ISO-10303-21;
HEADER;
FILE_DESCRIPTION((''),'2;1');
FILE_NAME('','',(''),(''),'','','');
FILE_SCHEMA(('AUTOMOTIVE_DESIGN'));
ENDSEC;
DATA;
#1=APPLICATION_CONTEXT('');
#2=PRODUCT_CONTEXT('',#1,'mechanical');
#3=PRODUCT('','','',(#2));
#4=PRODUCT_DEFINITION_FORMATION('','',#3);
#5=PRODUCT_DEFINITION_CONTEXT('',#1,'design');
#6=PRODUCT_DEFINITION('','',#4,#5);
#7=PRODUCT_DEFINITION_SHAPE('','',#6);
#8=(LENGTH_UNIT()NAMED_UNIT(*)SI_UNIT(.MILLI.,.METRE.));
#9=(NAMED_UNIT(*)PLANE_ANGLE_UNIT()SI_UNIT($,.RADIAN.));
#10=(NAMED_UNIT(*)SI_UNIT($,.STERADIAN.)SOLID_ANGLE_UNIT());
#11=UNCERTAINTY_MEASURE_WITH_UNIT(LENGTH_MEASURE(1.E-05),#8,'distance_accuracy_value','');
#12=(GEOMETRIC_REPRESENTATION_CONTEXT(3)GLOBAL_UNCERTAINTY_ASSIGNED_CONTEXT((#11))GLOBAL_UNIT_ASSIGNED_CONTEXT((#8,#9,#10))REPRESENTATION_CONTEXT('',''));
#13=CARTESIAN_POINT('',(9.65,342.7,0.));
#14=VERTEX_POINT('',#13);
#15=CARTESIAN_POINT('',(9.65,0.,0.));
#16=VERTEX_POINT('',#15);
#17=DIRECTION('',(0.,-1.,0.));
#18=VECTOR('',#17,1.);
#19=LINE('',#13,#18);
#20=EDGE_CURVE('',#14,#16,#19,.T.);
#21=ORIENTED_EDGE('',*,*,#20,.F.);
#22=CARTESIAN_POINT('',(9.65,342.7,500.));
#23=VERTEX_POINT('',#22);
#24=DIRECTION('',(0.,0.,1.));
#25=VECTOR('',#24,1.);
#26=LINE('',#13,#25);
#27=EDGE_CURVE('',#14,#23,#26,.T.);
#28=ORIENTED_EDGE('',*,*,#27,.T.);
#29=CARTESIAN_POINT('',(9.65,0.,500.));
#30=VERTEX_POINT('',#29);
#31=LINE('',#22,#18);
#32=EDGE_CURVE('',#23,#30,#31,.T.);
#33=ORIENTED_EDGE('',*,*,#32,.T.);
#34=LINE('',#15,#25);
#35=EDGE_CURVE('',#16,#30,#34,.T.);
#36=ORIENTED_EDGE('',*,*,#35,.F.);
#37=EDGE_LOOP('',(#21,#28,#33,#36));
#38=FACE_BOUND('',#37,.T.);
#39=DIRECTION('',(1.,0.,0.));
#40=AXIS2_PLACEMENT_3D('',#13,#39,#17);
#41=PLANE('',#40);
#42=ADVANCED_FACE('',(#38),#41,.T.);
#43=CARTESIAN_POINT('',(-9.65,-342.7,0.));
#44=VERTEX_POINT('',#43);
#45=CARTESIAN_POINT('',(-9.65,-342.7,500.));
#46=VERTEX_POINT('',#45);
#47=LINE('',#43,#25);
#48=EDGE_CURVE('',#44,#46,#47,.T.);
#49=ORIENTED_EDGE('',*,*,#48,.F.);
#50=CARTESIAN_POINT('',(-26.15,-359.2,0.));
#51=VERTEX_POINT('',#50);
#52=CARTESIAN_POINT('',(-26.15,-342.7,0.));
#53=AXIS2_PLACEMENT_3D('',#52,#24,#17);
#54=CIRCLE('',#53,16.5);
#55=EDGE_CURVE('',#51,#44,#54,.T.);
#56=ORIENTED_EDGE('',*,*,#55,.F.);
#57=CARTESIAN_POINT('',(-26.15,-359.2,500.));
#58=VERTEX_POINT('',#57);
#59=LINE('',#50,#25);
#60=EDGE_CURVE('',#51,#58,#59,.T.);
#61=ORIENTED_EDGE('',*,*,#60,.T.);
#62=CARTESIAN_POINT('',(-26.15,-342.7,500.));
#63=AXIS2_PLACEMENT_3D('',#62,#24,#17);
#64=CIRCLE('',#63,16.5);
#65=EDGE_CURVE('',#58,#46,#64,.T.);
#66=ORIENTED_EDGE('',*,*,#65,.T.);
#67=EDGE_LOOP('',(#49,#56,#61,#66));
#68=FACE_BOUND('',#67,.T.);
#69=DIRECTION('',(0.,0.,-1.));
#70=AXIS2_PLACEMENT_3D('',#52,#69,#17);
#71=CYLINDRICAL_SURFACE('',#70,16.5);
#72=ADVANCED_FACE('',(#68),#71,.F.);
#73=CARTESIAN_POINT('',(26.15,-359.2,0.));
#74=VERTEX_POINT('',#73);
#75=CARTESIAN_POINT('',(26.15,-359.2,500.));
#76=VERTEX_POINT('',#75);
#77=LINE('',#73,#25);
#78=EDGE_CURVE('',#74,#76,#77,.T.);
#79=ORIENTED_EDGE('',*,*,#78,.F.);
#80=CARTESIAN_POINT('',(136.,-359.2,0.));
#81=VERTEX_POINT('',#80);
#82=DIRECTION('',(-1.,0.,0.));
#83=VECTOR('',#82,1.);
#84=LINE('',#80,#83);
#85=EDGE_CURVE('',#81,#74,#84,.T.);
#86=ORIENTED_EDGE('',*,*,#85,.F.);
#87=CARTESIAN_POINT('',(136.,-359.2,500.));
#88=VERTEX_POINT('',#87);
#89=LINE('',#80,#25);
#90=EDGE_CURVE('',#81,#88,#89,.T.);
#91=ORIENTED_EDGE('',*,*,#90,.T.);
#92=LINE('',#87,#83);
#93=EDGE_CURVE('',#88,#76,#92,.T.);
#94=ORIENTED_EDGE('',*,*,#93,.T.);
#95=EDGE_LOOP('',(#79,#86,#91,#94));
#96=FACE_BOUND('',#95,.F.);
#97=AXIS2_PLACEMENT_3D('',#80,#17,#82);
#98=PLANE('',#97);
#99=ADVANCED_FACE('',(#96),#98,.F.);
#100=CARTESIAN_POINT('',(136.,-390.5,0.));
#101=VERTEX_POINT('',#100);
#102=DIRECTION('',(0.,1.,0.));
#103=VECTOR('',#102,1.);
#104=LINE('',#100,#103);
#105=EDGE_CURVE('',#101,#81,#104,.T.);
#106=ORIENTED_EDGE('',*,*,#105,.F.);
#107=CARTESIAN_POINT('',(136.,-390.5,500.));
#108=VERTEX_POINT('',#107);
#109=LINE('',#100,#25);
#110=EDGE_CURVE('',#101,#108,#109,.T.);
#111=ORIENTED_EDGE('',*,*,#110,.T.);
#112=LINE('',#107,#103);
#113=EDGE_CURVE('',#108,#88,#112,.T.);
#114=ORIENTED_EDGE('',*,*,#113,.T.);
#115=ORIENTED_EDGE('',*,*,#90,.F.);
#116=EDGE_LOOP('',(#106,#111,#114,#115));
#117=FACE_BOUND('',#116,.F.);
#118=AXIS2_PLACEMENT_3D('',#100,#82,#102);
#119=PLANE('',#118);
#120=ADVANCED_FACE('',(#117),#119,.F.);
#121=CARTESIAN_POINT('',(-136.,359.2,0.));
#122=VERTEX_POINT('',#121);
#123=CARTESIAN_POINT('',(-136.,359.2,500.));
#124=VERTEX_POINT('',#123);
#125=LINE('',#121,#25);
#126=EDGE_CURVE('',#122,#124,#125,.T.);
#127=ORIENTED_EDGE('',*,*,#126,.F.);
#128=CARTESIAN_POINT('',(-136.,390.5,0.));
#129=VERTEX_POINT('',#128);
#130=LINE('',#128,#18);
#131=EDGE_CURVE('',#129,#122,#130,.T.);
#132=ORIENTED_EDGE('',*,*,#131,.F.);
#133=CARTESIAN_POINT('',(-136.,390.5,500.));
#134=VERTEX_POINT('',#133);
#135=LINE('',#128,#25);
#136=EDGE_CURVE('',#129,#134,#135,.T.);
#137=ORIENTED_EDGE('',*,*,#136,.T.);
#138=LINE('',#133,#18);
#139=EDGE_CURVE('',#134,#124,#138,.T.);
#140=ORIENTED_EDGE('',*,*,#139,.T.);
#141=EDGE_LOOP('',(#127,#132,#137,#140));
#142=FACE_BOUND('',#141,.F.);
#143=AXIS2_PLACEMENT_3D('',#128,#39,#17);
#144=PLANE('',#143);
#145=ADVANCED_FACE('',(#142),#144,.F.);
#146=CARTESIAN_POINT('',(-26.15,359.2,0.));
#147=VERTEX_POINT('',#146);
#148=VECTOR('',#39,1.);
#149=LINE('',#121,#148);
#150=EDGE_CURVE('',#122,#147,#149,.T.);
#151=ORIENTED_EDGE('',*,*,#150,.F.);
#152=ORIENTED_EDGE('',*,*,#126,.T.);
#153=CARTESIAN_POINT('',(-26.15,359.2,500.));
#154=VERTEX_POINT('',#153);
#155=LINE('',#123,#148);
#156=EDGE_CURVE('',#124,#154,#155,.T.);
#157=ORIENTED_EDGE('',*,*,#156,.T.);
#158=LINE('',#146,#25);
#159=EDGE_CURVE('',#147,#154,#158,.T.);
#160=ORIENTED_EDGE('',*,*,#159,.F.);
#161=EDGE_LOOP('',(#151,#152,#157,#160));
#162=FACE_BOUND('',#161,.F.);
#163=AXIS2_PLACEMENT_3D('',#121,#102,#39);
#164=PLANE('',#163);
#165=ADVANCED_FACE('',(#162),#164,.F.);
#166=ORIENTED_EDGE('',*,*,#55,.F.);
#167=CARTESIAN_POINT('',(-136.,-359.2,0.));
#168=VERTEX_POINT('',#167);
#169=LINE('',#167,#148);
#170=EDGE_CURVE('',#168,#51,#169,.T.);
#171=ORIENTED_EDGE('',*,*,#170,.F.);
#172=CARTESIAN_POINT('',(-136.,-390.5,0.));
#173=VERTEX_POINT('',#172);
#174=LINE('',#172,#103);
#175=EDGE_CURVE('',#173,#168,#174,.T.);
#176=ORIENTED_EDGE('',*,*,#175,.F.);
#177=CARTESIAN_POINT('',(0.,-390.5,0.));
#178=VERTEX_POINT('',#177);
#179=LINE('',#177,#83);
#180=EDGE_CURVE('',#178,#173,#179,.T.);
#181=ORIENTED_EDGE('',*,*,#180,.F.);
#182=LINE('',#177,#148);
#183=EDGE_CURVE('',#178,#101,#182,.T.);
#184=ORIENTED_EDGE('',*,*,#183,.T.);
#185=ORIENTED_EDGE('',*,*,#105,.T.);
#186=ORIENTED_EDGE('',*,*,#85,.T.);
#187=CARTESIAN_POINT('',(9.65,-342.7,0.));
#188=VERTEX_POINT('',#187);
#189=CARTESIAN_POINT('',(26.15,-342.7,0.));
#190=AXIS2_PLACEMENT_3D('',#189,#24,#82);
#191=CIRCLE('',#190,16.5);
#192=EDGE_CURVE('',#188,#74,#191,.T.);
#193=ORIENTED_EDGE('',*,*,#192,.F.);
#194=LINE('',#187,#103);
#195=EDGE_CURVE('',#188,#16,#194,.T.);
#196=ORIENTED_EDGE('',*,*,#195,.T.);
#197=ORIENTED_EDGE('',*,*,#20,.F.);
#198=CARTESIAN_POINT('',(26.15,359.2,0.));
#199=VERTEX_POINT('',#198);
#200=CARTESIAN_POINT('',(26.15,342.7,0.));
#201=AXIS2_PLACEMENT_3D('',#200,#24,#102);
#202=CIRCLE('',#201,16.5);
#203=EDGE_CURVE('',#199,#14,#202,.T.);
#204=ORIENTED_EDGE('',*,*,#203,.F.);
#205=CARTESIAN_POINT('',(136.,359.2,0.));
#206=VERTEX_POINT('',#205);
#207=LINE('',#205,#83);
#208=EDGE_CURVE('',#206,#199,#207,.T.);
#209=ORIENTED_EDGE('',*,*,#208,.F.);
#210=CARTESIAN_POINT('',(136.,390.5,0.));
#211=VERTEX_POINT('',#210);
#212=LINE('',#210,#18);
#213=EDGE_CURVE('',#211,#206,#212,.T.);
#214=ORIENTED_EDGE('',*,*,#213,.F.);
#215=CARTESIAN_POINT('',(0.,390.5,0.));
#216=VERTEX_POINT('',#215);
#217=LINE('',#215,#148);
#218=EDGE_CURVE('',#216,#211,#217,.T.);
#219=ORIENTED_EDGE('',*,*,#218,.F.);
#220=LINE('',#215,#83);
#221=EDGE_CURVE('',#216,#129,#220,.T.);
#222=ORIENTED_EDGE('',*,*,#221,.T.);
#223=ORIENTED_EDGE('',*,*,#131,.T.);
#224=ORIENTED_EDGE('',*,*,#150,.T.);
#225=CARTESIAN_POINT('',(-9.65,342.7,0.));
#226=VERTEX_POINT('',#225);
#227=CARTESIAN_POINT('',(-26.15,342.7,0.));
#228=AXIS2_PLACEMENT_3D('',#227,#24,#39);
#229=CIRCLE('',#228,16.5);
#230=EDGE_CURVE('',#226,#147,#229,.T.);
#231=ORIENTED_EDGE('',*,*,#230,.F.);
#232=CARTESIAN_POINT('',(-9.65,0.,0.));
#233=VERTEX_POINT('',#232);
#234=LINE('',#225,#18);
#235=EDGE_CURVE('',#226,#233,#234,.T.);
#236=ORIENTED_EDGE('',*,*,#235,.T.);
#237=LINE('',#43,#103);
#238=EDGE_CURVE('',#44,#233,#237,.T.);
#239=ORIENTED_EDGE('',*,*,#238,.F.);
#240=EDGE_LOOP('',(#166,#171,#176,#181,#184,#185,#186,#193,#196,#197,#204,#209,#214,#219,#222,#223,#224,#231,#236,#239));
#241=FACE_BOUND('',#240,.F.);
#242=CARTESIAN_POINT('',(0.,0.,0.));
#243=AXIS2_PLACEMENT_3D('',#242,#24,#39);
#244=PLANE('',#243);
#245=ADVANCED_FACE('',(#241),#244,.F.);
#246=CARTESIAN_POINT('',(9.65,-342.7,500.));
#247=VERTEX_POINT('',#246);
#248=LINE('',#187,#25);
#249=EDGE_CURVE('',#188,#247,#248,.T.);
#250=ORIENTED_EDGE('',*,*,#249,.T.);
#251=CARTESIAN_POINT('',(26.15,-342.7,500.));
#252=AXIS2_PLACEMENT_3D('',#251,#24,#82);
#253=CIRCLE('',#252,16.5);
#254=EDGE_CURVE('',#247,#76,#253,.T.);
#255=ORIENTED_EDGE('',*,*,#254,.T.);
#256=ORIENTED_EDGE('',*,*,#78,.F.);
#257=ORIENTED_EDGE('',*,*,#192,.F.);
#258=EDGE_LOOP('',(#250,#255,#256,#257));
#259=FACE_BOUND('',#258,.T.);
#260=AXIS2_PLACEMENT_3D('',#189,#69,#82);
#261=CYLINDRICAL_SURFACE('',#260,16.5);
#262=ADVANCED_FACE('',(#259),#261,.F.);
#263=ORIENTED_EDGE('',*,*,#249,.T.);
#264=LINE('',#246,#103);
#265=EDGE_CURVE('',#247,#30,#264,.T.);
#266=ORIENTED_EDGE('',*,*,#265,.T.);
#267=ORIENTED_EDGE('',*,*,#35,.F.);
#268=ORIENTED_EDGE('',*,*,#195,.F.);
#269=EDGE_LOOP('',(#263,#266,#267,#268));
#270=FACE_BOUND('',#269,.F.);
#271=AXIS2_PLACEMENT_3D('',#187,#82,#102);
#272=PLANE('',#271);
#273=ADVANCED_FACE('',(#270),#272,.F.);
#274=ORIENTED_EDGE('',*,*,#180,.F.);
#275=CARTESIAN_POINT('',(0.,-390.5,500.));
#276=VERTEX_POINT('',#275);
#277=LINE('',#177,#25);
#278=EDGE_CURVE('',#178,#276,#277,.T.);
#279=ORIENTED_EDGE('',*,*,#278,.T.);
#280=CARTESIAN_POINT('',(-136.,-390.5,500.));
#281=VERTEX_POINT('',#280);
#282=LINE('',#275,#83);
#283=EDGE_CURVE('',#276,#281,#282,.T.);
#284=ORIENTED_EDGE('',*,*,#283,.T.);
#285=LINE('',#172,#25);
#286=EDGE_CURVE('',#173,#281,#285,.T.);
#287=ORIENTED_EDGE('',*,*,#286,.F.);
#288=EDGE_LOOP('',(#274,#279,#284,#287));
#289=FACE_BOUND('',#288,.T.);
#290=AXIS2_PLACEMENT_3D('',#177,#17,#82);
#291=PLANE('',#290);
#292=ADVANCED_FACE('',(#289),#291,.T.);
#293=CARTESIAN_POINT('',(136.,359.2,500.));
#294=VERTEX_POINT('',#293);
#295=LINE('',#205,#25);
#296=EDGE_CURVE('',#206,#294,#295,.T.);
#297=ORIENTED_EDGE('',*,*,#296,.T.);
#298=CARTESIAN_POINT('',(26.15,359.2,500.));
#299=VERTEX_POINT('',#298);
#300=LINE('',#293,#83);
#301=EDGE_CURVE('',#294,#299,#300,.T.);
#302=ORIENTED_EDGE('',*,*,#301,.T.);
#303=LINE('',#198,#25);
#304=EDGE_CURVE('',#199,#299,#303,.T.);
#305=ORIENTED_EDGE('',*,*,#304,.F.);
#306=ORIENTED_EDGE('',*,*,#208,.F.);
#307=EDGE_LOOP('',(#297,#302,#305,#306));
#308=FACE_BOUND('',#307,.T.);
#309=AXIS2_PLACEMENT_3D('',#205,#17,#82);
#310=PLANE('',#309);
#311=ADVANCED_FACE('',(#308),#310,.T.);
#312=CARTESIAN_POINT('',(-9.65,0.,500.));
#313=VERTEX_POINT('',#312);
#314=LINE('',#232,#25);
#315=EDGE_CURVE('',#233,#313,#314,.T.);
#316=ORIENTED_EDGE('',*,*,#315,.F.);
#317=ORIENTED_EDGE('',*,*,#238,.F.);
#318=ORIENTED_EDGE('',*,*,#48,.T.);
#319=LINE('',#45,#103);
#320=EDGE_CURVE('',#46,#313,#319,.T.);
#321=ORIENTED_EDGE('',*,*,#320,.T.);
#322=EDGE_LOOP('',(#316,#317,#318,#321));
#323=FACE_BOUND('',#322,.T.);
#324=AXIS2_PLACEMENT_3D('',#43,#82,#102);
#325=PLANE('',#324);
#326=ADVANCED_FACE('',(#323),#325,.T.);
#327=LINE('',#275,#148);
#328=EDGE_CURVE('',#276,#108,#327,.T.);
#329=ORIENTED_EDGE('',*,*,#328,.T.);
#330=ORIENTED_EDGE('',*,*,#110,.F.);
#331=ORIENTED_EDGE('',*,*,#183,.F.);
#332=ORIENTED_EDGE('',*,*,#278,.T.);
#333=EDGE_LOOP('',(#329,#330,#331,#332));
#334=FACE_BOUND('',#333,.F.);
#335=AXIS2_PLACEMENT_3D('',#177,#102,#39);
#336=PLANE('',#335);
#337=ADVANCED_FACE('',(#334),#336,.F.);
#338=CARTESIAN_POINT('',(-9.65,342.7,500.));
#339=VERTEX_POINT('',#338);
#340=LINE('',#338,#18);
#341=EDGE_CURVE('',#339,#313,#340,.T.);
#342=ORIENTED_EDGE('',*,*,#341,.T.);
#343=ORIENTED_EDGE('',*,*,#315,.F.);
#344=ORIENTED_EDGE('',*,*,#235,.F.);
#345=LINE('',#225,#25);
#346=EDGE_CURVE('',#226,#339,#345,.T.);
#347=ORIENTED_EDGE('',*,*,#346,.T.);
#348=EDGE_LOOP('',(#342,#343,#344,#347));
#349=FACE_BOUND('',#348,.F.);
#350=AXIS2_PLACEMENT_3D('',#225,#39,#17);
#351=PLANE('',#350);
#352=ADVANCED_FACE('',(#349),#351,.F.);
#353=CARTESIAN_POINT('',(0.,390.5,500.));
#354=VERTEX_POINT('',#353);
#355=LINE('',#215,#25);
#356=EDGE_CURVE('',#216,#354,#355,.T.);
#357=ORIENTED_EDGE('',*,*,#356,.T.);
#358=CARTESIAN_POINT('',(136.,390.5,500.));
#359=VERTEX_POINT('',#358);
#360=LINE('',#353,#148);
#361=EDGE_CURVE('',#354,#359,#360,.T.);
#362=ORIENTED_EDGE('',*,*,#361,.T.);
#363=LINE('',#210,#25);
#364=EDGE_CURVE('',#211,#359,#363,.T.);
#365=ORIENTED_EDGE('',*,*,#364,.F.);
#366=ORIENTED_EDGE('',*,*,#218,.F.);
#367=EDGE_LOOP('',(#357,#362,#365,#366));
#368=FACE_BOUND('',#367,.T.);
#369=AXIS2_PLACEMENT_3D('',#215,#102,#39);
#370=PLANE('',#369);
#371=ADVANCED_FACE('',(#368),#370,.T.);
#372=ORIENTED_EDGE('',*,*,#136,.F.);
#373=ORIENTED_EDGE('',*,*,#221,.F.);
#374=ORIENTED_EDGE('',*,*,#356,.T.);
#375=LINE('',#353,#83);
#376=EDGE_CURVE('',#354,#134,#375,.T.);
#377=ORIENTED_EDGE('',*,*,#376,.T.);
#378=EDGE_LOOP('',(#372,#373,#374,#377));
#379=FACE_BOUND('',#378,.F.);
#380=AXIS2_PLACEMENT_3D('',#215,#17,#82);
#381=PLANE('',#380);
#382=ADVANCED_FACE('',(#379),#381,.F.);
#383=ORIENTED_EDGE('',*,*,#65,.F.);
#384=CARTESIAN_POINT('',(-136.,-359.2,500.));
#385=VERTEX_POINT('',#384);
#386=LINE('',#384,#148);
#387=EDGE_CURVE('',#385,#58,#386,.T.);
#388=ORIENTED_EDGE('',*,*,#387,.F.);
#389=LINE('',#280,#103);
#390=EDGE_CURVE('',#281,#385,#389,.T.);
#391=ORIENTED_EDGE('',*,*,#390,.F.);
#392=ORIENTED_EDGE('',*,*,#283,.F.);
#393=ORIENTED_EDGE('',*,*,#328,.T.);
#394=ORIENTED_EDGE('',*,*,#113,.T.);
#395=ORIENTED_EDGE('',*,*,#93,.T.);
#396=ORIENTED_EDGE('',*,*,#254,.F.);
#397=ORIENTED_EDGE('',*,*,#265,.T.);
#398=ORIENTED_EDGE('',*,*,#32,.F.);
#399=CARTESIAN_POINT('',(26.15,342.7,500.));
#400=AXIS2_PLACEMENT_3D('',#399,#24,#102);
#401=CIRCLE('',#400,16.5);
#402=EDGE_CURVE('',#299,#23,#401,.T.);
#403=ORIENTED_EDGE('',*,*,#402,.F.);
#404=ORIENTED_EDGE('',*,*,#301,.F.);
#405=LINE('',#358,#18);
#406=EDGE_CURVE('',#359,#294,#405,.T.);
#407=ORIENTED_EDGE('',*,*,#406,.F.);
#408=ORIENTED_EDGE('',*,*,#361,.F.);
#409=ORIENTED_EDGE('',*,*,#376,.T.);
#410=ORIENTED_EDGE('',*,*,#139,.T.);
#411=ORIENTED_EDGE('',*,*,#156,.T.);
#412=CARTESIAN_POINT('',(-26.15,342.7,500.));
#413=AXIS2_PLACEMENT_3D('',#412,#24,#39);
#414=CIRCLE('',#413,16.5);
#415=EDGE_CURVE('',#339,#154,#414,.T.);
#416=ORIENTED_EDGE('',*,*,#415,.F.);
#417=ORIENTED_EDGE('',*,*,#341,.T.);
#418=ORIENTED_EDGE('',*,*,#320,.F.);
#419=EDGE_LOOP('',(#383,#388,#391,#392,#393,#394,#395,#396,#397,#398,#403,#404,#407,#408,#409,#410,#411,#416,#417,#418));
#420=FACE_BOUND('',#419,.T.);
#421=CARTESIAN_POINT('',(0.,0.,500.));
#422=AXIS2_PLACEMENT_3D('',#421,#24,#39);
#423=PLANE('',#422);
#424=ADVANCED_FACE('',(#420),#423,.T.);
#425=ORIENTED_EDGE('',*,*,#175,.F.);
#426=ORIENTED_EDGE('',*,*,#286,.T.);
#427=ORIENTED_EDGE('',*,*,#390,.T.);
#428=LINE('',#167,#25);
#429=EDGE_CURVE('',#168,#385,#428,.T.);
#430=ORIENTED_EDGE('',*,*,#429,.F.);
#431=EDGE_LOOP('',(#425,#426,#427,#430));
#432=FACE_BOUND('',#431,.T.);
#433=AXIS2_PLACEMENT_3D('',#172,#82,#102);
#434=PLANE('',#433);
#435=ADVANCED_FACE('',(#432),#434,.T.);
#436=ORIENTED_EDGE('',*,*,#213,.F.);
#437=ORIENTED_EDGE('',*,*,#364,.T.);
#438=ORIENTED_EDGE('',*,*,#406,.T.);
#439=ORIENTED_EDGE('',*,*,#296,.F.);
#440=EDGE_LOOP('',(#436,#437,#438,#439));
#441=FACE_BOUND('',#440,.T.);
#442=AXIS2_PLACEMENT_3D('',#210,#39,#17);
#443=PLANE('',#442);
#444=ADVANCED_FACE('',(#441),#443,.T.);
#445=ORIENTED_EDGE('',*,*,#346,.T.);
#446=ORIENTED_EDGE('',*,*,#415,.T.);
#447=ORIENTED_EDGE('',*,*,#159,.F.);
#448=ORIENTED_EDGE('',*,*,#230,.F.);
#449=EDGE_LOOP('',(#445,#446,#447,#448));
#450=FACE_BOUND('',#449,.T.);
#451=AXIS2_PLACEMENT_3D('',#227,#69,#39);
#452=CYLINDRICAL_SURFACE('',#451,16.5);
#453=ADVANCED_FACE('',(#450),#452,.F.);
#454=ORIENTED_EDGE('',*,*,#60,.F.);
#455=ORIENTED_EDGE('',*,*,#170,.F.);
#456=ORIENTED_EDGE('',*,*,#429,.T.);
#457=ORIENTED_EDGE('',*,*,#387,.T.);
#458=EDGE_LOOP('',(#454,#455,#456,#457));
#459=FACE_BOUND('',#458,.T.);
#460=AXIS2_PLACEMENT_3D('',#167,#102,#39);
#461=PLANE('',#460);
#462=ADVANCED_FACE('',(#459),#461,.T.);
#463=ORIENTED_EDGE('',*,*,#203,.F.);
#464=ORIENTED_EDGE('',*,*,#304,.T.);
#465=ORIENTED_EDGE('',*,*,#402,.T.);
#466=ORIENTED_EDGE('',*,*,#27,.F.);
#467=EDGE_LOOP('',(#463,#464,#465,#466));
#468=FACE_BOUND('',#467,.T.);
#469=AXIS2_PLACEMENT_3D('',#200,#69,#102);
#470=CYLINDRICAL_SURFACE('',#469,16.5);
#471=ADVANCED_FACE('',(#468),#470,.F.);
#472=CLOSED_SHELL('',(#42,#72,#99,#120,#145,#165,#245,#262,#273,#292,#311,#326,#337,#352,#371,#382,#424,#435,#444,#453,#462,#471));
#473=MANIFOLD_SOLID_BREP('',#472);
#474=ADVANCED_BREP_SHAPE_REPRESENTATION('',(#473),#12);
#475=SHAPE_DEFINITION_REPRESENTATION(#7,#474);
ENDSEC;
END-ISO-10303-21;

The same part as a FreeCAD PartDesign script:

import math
import FreeCAD as App
import Part
import Sketcher

V = App.Vector
Q = App.Units.Quantity

doc = App.newDocument("Part")
body = doc.addObject("PartDesign::Body", "Body")

sketch1 = body.newObject("Sketcher::SketchObject", "Sketch")
sketch1.AttachmentSupport = (doc.getObject("XY_Plane"), [""])
sketch1.MapMode = "FlatFace"
sketch1.addGeometry(Part.LineSegment(V(-136, -359, 0), V(-136, -390, 0)), False)
sketch1.addGeometry(Part.LineSegment(V(-136, -390, 0), V(136, -390, 0)), False)
sketch1.addGeometry(Part.LineSegment(V(136, -390, 0), V(136, -359, 0)), False)
sketch1.addGeometry(Part.LineSegment(V(136, -359, 0), V(26, -359, 0)), False)
sketch1.addGeometry(Part.ArcOfCircle(Part.Circle(V(26, -343, 0), V(0, 0, 1), 16), math.radians(180), math.radians(270)), False)
sketch1.addGeometry(Part.LineSegment(V(10, -343, 0), V(10, 343, 0)), False)
sketch1.addGeometry(Part.ArcOfCircle(Part.Circle(V(26, 343, 0), V(0, 0, 1), 16), math.radians(90), math.radians(180)), False)
sketch1.addGeometry(Part.LineSegment(V(26, 359, 0), V(136, 359, 0)), False)
sketch1.addGeometry(Part.LineSegment(V(136, 359, 0), V(136, 390, 0)), False)
sketch1.addGeometry(Part.LineSegment(V(136, 390, 0), V(-136, 390, 0)), False)
sketch1.addGeometry(Part.LineSegment(V(-136, 390, 0), V(-136, 359, 0)), False)
sketch1.addGeometry(Part.LineSegment(V(-136, 359, 0), V(-26, 359, 0)), False)
sketch1.addGeometry(Part.ArcOfCircle(Part.Circle(V(-26, 343, 0), V(0, 0, 1), 16), math.radians(0), math.radians(90)), False)
sketch1.addGeometry(Part.LineSegment(V(-10, 343, 0), V(-10, -343, 0)), False)
sketch1.addGeometry(Part.ArcOfCircle(Part.Circle(V(-26, -343, 0), V(0, 0, 1), 16), math.radians(-90), math.radians(0)), False)
sketch1.addGeometry(Part.LineSegment(V(-26, -359, 0), V(-136, -359, 0)), False)
sketch1.addConstraint(Sketcher.Constraint("Coincident", 0, 2, 1, 1))
sketch1.addConstraint(Sketcher.Constraint("Coincident", 1, 2, 2, 1))
sketch1.addConstraint(Sketcher.Constraint("Coincident", 2, 2, 3, 1))
sketch1.addConstraint(Sketcher.Constraint("Tangent", 3, 2, 4, 2))
sketch1.addConstraint(Sketcher.Constraint("Tangent", 4, 1, 5, 1))
sketch1.addConstraint(Sketcher.Constraint("Tangent", 5, 2, 6, 2))
sketch1.addConstraint(Sketcher.Constraint("Tangent", 6, 1, 7, 1))
sketch1.addConstraint(Sketcher.Constraint("Coincident", 7, 2, 8, 1))
sketch1.addConstraint(Sketcher.Constraint("Coincident", 8, 2, 9, 1))
sketch1.addConstraint(Sketcher.Constraint("Coincident", 9, 2, 10, 1))
sketch1.addConstraint(Sketcher.Constraint("Coincident", 10, 2, 11, 1))
sketch1.addConstraint(Sketcher.Constraint("Tangent", 11, 2, 12, 2))
sketch1.addConstraint(Sketcher.Constraint("Tangent", 12, 1, 13, 1))
sketch1.addConstraint(Sketcher.Constraint("Tangent", 13, 2, 14, 2))
sketch1.addConstraint(Sketcher.Constraint("Tangent", 14, 1, 15, 1))
sketch1.addConstraint(Sketcher.Constraint("Coincident", 15, 2, 0, 1))
sketch1.addConstraint(Sketcher.Constraint("Vertical", 0))
sketch1.addConstraint(Sketcher.Constraint("Horizontal", 1))
sketch1.addConstraint(Sketcher.Constraint("Vertical", 2))
sketch1.addConstraint(Sketcher.Constraint("Horizontal", 3))
sketch1.addConstraint(Sketcher.Constraint("Vertical", 5))
sketch1.addConstraint(Sketcher.Constraint("Horizontal", 7))
sketch1.addConstraint(Sketcher.Constraint("Vertical", 8))
sketch1.addConstraint(Sketcher.Constraint("Horizontal", 9))
sketch1.addConstraint(Sketcher.Constraint("Vertical", 10))
sketch1.addConstraint(Sketcher.Constraint("Horizontal", 11))
sketch1.addConstraint(Sketcher.Constraint("Vertical", 13))
sketch1.addConstraint(Sketcher.Constraint("Horizontal", 15))
sketch1.addConstraint(Sketcher.Constraint("Equal", 4, 6))
sketch1.addConstraint(Sketcher.Constraint("Equal", 6, 12))
sketch1.addConstraint(Sketcher.Constraint("Equal", 12, 14))
sketch1.addConstraint(Sketcher.Constraint("Symmetric", 4, 3, 12, 3, -1, 1))
sketch1.addConstraint(Sketcher.Constraint("Symmetric", 0, 2, 8, 2, -1, 1))
sketch1.addConstraint(Sketcher.Constraint("Symmetric", 7, 2, 10, 2, -2))
sketch1.addConstraint(Sketcher.Constraint("Symmetric", 2, 2, 15, 2, -2))
sketch1.addConstraint(Sketcher.Constraint("Radius", 4, Q("16.5 mm")))
sketch1.addConstraint(Sketcher.Constraint("DistanceY", 0, 2, 0, 1, Q("31.3 mm")))
sketch1.addConstraint(Sketcher.Constraint("DistanceX", 0, 2, -1, 1, Q("136 mm")))
sketch1.addConstraint(Sketcher.Constraint("DistanceY", 0, 2, -1, 1, Q("390.5 mm")))
sketch1.addConstraint(Sketcher.Constraint("DistanceX", -1, 1, 4, 1, Q("9.65 mm")))
pad1 = body.newObject("PartDesign::Pad", "Pad")
pad1.Profile = sketch1
pad1.Length = 500

doc.recompute()
